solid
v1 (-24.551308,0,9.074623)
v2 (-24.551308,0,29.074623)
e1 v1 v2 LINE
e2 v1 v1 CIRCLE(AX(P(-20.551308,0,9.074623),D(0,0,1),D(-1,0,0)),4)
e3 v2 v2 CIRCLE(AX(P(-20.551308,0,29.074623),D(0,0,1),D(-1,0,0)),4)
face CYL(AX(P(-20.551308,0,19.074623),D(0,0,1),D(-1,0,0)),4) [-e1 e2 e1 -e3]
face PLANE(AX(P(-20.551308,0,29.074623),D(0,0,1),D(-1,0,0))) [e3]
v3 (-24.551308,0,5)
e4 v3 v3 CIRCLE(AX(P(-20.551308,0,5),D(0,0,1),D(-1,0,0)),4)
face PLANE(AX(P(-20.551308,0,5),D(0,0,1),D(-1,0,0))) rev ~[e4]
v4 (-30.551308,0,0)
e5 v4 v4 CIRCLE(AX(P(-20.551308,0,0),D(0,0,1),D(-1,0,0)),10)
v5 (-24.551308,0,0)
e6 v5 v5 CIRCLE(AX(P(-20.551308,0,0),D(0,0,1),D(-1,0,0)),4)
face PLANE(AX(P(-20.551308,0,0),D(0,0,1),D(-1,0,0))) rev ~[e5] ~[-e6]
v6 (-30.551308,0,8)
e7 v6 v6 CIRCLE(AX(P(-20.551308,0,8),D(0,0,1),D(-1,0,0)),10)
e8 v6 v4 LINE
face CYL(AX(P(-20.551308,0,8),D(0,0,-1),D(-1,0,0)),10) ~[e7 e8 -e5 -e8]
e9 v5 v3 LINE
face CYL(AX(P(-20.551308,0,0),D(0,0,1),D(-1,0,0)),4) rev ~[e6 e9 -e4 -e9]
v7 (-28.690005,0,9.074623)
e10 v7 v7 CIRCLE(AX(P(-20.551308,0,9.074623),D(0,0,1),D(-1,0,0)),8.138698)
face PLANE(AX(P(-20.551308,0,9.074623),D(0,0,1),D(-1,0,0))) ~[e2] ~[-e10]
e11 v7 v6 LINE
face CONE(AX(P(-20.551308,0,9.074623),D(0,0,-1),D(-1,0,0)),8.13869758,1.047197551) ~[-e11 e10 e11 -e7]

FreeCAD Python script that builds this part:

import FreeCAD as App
import Part
import Sketcher
Q = App.Units.Quantity

doc = App.newDocument("Part")
body = doc.addObject("PartDesign::Body", "Body")

sketch1 = body.newObject("Sketcher::SketchObject", "Sketch")
sketch1.AttachmentSupport = (doc.getObject("XZ_Plane"), [""])
sketch1.MapMode = "FlatFace"
sketch1.addGeometry(Part.LineSegment(App.Vector(-24.6, 29.1, 0), App.Vector(-24.6, 9.1, 0)), False)
sketch1.addGeometry(Part.LineSegment(App.Vector(-24.6, 9.1, 0), App.Vector(-28.7, 9.1, 0)), False)
sketch1.addGeometry(Part.LineSegment(App.Vector(-28.7, 9.1, 0), App.Vector(-30.6, 8, 0)), False)
sketch1.addGeometry(Part.LineSegment(App.Vector(-30.6, 8, 0), App.Vector(-30.6, 0, 0)), False)
sketch1.addGeometry(Part.LineSegment(App.Vector(-30.6, 0, 0), App.Vector(-24.6, 0, 0)), False)
sketch1.addGeometry(Part.LineSegment(App.Vector(-24.6, 0, 0), App.Vector(-24.6, 5, 0)), False)
sketch1.addGeometry(Part.LineSegment(App.Vector(-24.6, 5, 0), App.Vector(-20.6, 5, 0)), False)
sketch1.addGeometry(Part.LineSegment(App.Vector(-20.6, 5, 0), App.Vector(-20.6, 29.1, 0)), False)
sketch1.addGeometry(Part.LineSegment(App.Vector(-20.6, 29.1, 0), App.Vector(-24.6, 29.1, 0)), False)
sketch1.addGeometry(Part.LineSegment(App.Vector(-20.6, 0, 0), App.Vector(-20.6, 29.1, 0)), True)
sketch1.addConstraint(Sketcher.Constraint("Coincident", 0, 2, 1, 1))
sketch1.addConstraint(Sketcher.Constraint("Coincident", 1, 2, 2, 1))
sketch1.addConstraint(Sketcher.Constraint("Coincident", 2, 2, 3, 1))
sketch1.addConstraint(Sketcher.Constraint("Coincident", 3, 2, 4, 1))
sketch1.addConstraint(Sketcher.Constraint("Coincident", 4, 2, 5, 1))
sketch1.addConstraint(Sketcher.Constraint("Coincident", 5, 2, 6, 1))
sketch1.addConstraint(Sketcher.Constraint("Coincident", 6, 2, 7, 1))
sketch1.addConstraint(Sketcher.Constraint("Coincident", 7, 2, 8, 1))
sketch1.addConstraint(Sketcher.Constraint("Coincident", 8, 2, 0, 1))
sketch1.addConstraint(Sketcher.Constraint("Vertical", 0))
sketch1.addConstraint(Sketcher.Constraint("Horizontal", 1))
sketch1.addConstraint(Sketcher.Constraint("Vertical", 3))
sketch1.addConstraint(Sketcher.Constraint("Horizontal", 4))
sketch1.addConstraint(Sketcher.Constraint("Vertical", 5))
sketch1.addConstraint(Sketcher.Constraint("Horizontal", 6))
sketch1.addConstraint(Sketcher.Constraint("Vertical", 7))
sketch1.addConstraint(Sketcher.Constraint("Horizontal", 8))
sketch1.addConstraint(Sketcher.Constraint("Vertical", 9))
sketch1.addConstraint(Sketcher.Constraint("Coincident", 9, 2, 7, 2))
sketch1.addConstraint(Sketcher.Constraint("PointOnObject", 3, 2, -1))
sketch1.addConstraint(Sketcher.Constraint("PointOnObject", 9, 1, -1))
sketch1.addConstraint(Sketcher.Constraint("Vertical", 0, 2, 4, 2))
sketch1.addConstraint(Sketcher.Constraint("DistanceX", 4, 1, 4, 2, Q("6 mm")))
sketch1.addConstraint(Sketcher.Constraint("DistanceX", 6, 1, 6, 2, Q("4 mm")))
sketch1.addConstraint(Sketcher.Constraint("DistanceY", 0, 2, 0, 1, Q("20 mm")))
sketch1.addConstraint(Sketcher.Constraint("DistanceY", 3, 2, 3, 1, Q("8 mm")))
sketch1.addConstraint(Sketcher.Constraint("DistanceY", 5, 1, 5, 2, Q("5 mm")))
sketch1.addConstraint(Sketcher.Constraint("Angle", 2, Q("-150 deg")))
sketch1.addConstraint(Sketcher.Constraint("DistanceX", 1, 2, 1, 1, Q("4.138698 mm")))
sketch1.addConstraint(Sketcher.Constraint("DistanceX", 0, 2, -1, 1, Q("24.551308 mm")))
revolution = body.newObject("PartDesign::Revolution", "Revolution")
revolution.Profile = sketch1
revolution.ReferenceAxis = (sketch1, ["Axis0"])
revolution.Angle = 360

doc.recompute()
